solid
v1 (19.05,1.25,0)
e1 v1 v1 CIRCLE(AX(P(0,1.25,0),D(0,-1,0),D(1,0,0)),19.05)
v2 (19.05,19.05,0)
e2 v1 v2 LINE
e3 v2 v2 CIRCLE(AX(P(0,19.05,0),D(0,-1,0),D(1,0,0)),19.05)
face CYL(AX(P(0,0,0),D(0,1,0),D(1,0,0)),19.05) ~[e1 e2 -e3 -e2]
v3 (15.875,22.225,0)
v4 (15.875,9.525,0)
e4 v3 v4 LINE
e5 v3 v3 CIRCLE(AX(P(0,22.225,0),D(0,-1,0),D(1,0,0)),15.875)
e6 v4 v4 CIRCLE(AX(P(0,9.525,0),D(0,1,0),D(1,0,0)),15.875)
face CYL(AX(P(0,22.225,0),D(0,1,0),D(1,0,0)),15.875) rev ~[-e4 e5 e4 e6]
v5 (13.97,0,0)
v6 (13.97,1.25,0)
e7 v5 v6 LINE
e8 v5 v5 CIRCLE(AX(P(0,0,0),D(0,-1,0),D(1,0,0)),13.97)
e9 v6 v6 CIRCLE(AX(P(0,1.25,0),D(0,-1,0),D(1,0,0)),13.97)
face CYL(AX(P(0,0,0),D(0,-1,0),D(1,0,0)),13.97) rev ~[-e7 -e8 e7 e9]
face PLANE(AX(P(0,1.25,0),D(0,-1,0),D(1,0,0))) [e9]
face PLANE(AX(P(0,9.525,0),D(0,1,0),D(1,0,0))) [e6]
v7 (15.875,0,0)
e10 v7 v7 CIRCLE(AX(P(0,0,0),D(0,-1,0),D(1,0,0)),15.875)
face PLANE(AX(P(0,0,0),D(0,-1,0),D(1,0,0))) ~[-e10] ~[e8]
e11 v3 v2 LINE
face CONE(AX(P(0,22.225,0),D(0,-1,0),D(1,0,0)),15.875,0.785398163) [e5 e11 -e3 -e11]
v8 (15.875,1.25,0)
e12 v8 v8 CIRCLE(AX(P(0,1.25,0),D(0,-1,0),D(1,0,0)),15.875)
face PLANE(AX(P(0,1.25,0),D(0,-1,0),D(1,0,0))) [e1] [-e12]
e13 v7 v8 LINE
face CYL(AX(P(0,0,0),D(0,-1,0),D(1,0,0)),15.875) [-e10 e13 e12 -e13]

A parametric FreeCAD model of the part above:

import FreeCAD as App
import Part
import Sketcher
from FreeCAD import Vector
Q = App.Units.Quantity

doc = App.newDocument("Part")
body = doc.addObject("PartDesign::Body", "Body")

sketch1 = body.newObject("Sketcher::SketchObject", "Sketch")
sketch1.AttachmentSupport = (doc.getObject("XY_Plane"), [""])
sketch1.MapMode = "FlatFace"
sketch1.addGeometry([
    Part.LineSegment(Vector(0, 22.2, 0), Vector(0, 0, 0)),
    Part.LineSegment(Vector(0, 0, 0), Vector(19.1, 0, 0)),
    Part.LineSegment(Vector(19.1, 0, 0), Vector(19.1, 19.1, 0)),
    Part.LineSegment(Vector(19.1, 19.1, 0), Vector(15.9, 22.2, 0)),
    Part.LineSegment(Vector(15.9, 22.2, 0), Vector(0, 22.2, 0)),
], False)
sketch1.addConstraint([
    Sketcher.Constraint("Coincident", 0, 2, 1, 1),
    Sketcher.Constraint("Coincident", 1, 2, 2, 1),
    Sketcher.Constraint("Coincident", 2, 2, 3, 1),
    Sketcher.Constraint("Coincident", 3, 2, 4, 1),
    Sketcher.Constraint("Coincident", 4, 2, 0, 1),
    Sketcher.Constraint("Vertical", 0),
    Sketcher.Constraint("Horizontal", 1),
    Sketcher.Constraint("Vertical", 2),
    Sketcher.Constraint("Horizontal", 4),
    Sketcher.Constraint("Coincident", 0, 2, -1, 1),
    Sketcher.Constraint("Equal", 1, 2),
    Sketcher.Constraint("DistanceX", 1, 1, 1, 2, Q("0.75 in")),
    Sketcher.Constraint("Angle", 3, Q("135 deg")),
    Sketcher.Constraint("DistanceX", 3, 2, 2, 2, Q("0.125 in")),
])
revolution = body.newObject("PartDesign::Revolution", "Revolution")
revolution.Profile = sketch1
revolution.ReferenceAxis = (sketch1, ["V_Axis"])
revolution.Angle = 360

sketch2 = body.newObject("Sketcher::SketchObject", "Sketch001")
sketch2.AttachmentSupport = (doc.getObject("XZ_Plane"), [""])
sketch2.MapMode = "FlatFace"
sketch2.AttachmentOffset = App.Placement(Vector(0, 0, -0.875 * 25.4), App.Rotation())
sketch2.addGeometry(Part.Circle(Vector(0, 0, 0), Vector(0, 0, 1), 16), False)
sketch2.addConstraint([
    Sketcher.Constraint("Coincident", 0, 3, -1, 1),
    Sketcher.Constraint("Diameter", 0, Q("1.25 in")),
])
pocket1 = body.newObject("PartDesign::Pocket", "Pocket")
pocket1.Profile = sketch2
pocket1.Length = Q("0.5 in")
pocket1.Reversed = True

sketch3 = body.newObject("Sketcher::SketchObject", "Sketch002")
sketch3.AttachmentSupport = (doc.getObject("XZ_Plane"), [""])
sketch3.MapMode = "FlatFace"
sketch3.addGeometry([
    Part.Circle(Vector(0, 0, 0), Vector(0, 0, 1), 14),
    Part.Circle(Vector(0, 0, 0), Vector(0, 0, 1), 19),
    Part.Circle(Vector(0, 0, 0), Vector(0, 0, 1), 16),
], False)
sketch3.addConstraint([
    Sketcher.Constraint("Coincident", 0, 3, -1, 1),
    Sketcher.Constraint("Coincident", 1, 3, -1, 1),
    Sketcher.Constraint("Coincident", 2, 3, -1, 1),
    Sketcher.Constraint("Diameter", 0, Q("1.1 in")),
    Sketcher.Constraint("Diameter", 1, Q("1.5 in")),
    Sketcher.Constraint("Diameter", 2, Q("1.25 in")),
])
pocket2 = body.newObject("PartDesign::Pocket", "Pocket001")
pocket2.Profile = sketch3
pocket2.Length = 1.25

doc.recompute()
